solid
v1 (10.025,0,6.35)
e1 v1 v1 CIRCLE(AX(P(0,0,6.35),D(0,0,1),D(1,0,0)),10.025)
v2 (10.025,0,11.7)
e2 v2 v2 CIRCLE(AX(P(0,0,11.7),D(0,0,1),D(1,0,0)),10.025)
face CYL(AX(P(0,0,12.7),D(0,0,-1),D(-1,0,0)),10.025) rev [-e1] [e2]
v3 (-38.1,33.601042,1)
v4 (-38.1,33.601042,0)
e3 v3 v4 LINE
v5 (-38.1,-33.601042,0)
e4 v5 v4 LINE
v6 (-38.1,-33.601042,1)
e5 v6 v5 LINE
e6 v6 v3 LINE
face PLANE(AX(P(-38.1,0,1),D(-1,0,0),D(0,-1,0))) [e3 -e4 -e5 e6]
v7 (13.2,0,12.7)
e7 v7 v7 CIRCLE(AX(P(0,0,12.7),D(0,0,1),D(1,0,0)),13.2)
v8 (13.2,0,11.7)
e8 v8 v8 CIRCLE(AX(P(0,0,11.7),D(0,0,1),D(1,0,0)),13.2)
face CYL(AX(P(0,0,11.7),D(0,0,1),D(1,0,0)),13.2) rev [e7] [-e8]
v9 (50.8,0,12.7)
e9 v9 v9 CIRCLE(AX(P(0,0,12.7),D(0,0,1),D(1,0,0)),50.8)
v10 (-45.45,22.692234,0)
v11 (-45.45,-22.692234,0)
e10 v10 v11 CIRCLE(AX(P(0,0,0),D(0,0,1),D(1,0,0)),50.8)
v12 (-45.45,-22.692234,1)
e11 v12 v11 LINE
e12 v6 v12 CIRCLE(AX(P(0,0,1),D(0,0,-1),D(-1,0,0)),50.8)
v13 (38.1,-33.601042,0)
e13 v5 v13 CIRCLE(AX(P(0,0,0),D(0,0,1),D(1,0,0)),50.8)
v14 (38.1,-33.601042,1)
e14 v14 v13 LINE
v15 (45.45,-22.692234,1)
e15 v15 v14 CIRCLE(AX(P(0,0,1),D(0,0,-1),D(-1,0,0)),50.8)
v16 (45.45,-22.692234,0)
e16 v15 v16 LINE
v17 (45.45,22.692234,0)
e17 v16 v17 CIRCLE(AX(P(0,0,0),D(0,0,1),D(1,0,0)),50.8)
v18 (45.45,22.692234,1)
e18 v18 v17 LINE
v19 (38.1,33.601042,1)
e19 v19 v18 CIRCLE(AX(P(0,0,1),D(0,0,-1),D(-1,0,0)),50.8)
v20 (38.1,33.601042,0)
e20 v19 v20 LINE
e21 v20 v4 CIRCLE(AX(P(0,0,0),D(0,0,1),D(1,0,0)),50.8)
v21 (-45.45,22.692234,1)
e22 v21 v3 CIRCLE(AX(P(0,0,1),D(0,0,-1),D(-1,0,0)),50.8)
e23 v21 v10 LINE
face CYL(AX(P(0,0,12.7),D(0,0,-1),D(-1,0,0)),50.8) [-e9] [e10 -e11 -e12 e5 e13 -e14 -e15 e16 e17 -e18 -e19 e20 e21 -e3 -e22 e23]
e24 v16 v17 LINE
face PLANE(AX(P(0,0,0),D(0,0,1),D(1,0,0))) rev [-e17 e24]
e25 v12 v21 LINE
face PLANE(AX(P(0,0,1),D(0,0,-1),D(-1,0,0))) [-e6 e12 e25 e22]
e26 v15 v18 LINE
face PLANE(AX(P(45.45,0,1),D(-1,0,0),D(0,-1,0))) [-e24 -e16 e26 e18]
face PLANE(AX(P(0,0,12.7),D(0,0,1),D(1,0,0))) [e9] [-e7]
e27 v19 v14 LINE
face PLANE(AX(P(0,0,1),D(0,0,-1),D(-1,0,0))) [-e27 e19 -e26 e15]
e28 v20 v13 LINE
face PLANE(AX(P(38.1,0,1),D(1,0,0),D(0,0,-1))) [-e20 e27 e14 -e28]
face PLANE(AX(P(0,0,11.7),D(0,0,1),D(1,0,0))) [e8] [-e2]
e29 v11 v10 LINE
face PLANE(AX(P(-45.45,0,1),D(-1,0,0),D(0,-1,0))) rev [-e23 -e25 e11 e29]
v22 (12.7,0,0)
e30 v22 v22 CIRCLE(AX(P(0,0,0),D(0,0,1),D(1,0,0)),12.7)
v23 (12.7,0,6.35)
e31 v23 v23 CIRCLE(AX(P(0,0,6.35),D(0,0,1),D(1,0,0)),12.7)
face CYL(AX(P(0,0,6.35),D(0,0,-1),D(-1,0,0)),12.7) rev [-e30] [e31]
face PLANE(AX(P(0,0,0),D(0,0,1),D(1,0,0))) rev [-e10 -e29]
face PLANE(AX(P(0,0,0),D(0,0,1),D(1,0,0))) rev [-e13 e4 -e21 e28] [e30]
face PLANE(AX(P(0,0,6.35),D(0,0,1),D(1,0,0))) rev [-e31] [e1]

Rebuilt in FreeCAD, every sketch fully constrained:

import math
import FreeCAD as App
import Part
import Sketcher
Q = App.Units.Quantity

doc = App.newDocument("Part")
body = doc.addObject("PartDesign::Body", "Body")

sketch1 = doc.addObject("Sketcher::SketchObject", "Sketch")
body.addObject(sketch1)
sketch1.AttachmentSupport = (doc.XY_Plane, [""])
sketch1.MapMode = "FlatFace"
sketch1.addGeometry(Part.Circle(App.Vector(0, 0, 0), App.Vector(0, 0, 1), 51), False)
sketch1.addGeometry(Part.Circle(App.Vector(0, 0, 0), App.Vector(0, 0, 1), 10), False)
sketch1.addConstraint(Sketcher.Constraint("Coincident", 0, 3, -1, 1))
sketch1.addConstraint(Sketcher.Constraint("Coincident", 1, 3, -1, 1))
sketch1.addConstraint(Sketcher.Constraint("Diameter", 0, Q("4 in")))
sketch1.addConstraint(Sketcher.Constraint("Diameter", 1, Q("20.05 mm")))
pad1 = doc.addObject("PartDesign::Pad", "Pad")
body.addObject(pad1)
pad1.Profile = sketch1
pad1.Length = Q("0.5 in")

sketch2 = doc.addObject("Sketcher::SketchObject", "Sketch001")
body.addObject(sketch2)
sketch2.AttachmentSupport = (doc.XY_Plane, [""])
sketch2.MapMode = "FlatFace"
sketch2.AttachmentOffset = App.Placement(App.Vector(0, 0, 0.5 * 25.4), App.Rotation())
sketch2.addGeometry(Part.Circle(App.Vector(0, 0, 0), App.Vector(0, 0, 1), 13), False)
sketch2.addGeometry(Part.Circle(App.Vector(0, 0, 0), App.Vector(0, 0, 1), 10), False)
sketch2.addConstraint(Sketcher.Constraint("Coincident", 0, 3, -1, 1))
sketch2.addConstraint(Sketcher.Constraint("Coincident", 1, 3, -1, 1))
sketch2.addConstraint(Sketcher.Constraint("Diameter", 0, Q("26.4 mm")))
sketch2.addConstraint(Sketcher.Constraint("Diameter", 1, Q("20.05 mm")))
pocket1 = doc.addObject("PartDesign::Pocket", "Pocket")
body.addObject(pocket1)
pocket1.Profile = sketch2
pocket1.Length = 1

sketch3 = doc.addObject("Sketcher::SketchObject", "Sketch002")
body.addObject(sketch3)
sketch3.AttachmentSupport = (doc.XY_Plane, [""])
sketch3.MapMode = "FlatFace"
sketch3.addGeometry(Part.Circle(App.Vector(0, 0, 0), App.Vector(0, 0, 1), 13), False)
sketch3.addGeometry(Part.Circle(App.Vector(0, 0, 0), App.Vector(0, 0, 1), 10), False)
sketch3.addConstraint(Sketcher.Constraint("Coincident", 0, 3, -1, 1))
sketch3.addConstraint(Sketcher.Constraint("Coincident", 1, 3, -1, 1))
sketch3.addConstraint(Sketcher.Constraint("Diameter", 0, Q("1 in")))
sketch3.addConstraint(Sketcher.Constraint("Diameter", 1, Q("20.05 mm")))
pocket2 = doc.addObject("PartDesign::Pocket", "Pocket001")
body.addObject(pocket2)
pocket2.Profile = sketch3
pocket2.Length = Q("0.25 in")
pocket2.Reversed = True

sketch4 = doc.addObject("Sketcher::SketchObject", "Sketch003")
body.addObject(sketch4)
sketch4.AttachmentSupport = (doc.XY_Plane, [""])
sketch4.MapMode = "FlatFace"
sketch4.addGeometry(Part.LineSegment(App.Vector(-38, 34, 0), App.Vector(-38, -34, 0)), False)
sketch4.addGeometry(Part.ArcOfCircle(Part.Circle(App.Vector(0, 0, 0), App.Vector(0, 0, 1), 51), math.radians(-153.47), math.radians(-138.59)), False)
sketch4.addGeometry(Part.LineSegment(App.Vector(-45, -23, 0), App.Vector(-45, 23, 0)), False)
sketch4.addGeometry(Part.ArcOfCircle(Part.Circle(App.Vector(0, 0, 0), App.Vector(0, 0, 1), 51), math.radians(138.59), math.radians(153.47)), False)
sketch4.addGeometry(Part.ArcOfCircle(Part.Circle(App.Vector(0, 0, 0), App.Vector(0, 0, 1), 51), math.radians(-41.41), math.radians(-26.53)), False)
sketch4.addGeometry(Part.LineSegment(App.Vector(38, -34, 0), App.Vector(38, 34, 0)), False)
sketch4.addGeometry(Part.ArcOfCircle(Part.Circle(App.Vector(0, 0, 0), App.Vector(0, 0, 1), 51), math.radians(26.53), math.radians(41.41)), False)
sketch4.addGeometry(Part.LineSegment(App.Vector(45, 23, 0), App.Vector(45, -23, 0)), False)
sketch4.addConstraint(Sketcher.Constraint("Coincident", 0, 2, 1, 2))
sketch4.addConstraint(Sketcher.Constraint("Coincident", 1, 1, 2, 1))
sketch4.addConstraint(Sketcher.Constraint("Coincident", 2, 2, 3, 2))
sketch4.addConstraint(Sketcher.Constraint("Coincident", 3, 1, 0, 1))
sketch4.addConstraint(Sketcher.Constraint("Coincident", 4, 1, 5, 1))
sketch4.addConstraint(Sketcher.Constraint("Coincident", 5, 2, 6, 2))
sketch4.addConstraint(Sketcher.Constraint("Coincident", 6, 1, 7, 1))
sketch4.addConstraint(Sketcher.Constraint("Coincident", 7, 2, 4, 2))
sketch4.addConstraint(Sketcher.Constraint("Vertical", 0))
sketch4.addConstraint(Sketcher.Constraint("Vertical", 2))
sketch4.addConstraint(Sketcher.Constraint("Vertical", 5))
sketch4.addConstraint(Sketcher.Constraint("Vertical", 7))
sketch4.addConstraint(Sketcher.Constraint("Coincident", 1, 3, -1, 1))
sketch4.addConstraint(Sketcher.Constraint("Coincident", 3, 3, -1, 1))
sketch4.addConstraint(Sketcher.Constraint("Coincident", 4, 3, -1, 1))
sketch4.addConstraint(Sketcher.Constraint("Coincident", 6, 3, -1, 1))
sketch4.addConstraint(Sketcher.Constraint("Equal", 1, 3))
sketch4.addConstraint(Sketcher.Constraint("Equal", 3, 4))
sketch4.addConstraint(Sketcher.Constraint("Equal", 4, 6))
sketch4.addConstraint(Sketcher.Constraint("Horizontal", 0, 2, 4, 1))
sketch4.addConstraint(Sketcher.Constraint("Horizontal", 2, 2, 6, 1))
sketch4.addConstraint(Sketcher.Constraint("Radius", 1, Q("2 in")))
sketch4.addConstraint(Sketcher.Constraint("DistanceX", 0, 2, 4, 1, Q("3 in")))
sketch4.addConstraint(Sketcher.Constraint("DistanceY", 2, 1, 2, 2, Q("45.384469 mm")))
pocket3 = doc.addObject("PartDesign::Pocket", "Pocket002")
body.addObject(pocket3)
pocket3.Profile = sketch4
pocket3.Length = 1
pocket3.Reversed = True

doc.recompute()
